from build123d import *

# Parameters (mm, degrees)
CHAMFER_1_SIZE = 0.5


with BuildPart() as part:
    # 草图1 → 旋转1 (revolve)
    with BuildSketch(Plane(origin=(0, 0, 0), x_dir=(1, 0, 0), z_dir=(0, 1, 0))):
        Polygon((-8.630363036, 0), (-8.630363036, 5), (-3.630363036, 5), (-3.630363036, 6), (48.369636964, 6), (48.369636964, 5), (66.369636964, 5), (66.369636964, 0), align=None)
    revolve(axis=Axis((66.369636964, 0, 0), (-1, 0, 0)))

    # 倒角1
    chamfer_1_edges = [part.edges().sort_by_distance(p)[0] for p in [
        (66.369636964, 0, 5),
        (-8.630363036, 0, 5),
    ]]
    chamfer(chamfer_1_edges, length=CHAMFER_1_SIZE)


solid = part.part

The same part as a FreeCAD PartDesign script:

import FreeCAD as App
import Part
import Sketcher
from FreeCAD import Vector
Q = App.Units.Quantity


def edges_at(feature, points):
    """Names of the edges that pass closest to the given points."""
    edges = feature.Shape.Edges
    near = lambda p: min(range(len(edges)), key=lambda i: edges[i].distToShape(Part.Vertex(*p))[0])
    return sorted({f"Edge{near(p) + 1}" for p in points})

doc = App.newDocument("Part")
body = doc.addObject("PartDesign::Body", "Body")

# Sketch on XZ plane
sketch1 = doc.addObject("Sketcher::SketchObject", "Sketch")
body.addObject(sketch1)
sketch1.AttachmentSupport = (doc.XZ_Plane, [""])
sketch1.MapMode = "FlatFace"
sketch1.addGeometry(Part.LineSegment(Vector(-8.6, -5, 0), Vector(-8.6, 0, 0)), False)
sketch1.addGeometry(Part.LineSegment(Vector(-8.6, 0, 0), Vector(66.4, 0, 0)), False)
sketch1.addGeometry(Part.LineSegment(Vector(66.4, 0, 0), Vector(66.4, -5, 0)), False)
sketch1.addGeometry(Part.LineSegment(Vector(66.4, -5, 0), Vector(48.4, -5, 0)), False)
sketch1.addGeometry(Part.LineSegment(Vector(48.4, -5, 0), Vector(48.4, -6, 0)), False)
sketch1.addGeometry(Part.LineSegment(Vector(48.4, -6, 0), Vector(-3.6, -6, 0)), False)
sketch1.addGeometry(Part.LineSegment(Vector(-3.6, -6, 0), Vector(-3.6, -5, 0)), False)
sketch1.addGeometry(Part.LineSegment(Vector(-3.6, -5, 0), Vector(-8.6, -5, 0)), False)
sketch1.addConstraint(Sketcher.Constraint("Coincident", 0, 2, 1, 1))
sketch1.addConstraint(Sketcher.Constraint("Coincident", 1, 2, 2, 1))
sketch1.addConstraint(Sketcher.Constraint("Coincident", 2, 2, 3, 1))
sketch1.addConstraint(Sketcher.Constraint("Coincident", 3, 2, 4, 1))
sketch1.addConstraint(Sketcher.Constraint("Coincident", 4, 2, 5, 1))
sketch1.addConstraint(Sketcher.Constraint("Coincident", 5, 2, 6, 1))
sketch1.addConstraint(Sketcher.Constraint("Coincident", 6, 2, 7, 1))
sketch1.addConstraint(Sketcher.Constraint("Coincident", 7, 2, 0, 1))
sketch1.addConstraint(Sketcher.Constraint("Vertical", 0))
sketch1.addConstraint(Sketcher.Constraint("Horizontal", 1))
sketch1.addConstraint(Sketcher.Constraint("Vertical", 2))
sketch1.addConstraint(Sketcher.Constraint("Horizontal", 3))
sketch1.addConstraint(Sketcher.Constraint("Vertical", 4))
sketch1.addConstraint(Sketcher.Constraint("Horizontal", 5))
sketch1.addConstraint(Sketcher.Constraint("Vertical", 6))
sketch1.addConstraint(Sketcher.Constraint("Horizontal", 7))
sketch1.addConstraint(Sketcher.Constraint("PointOnObject", 0, 2, -1))
sketch1.addConstraint(Sketcher.Constraint("Horizontal", 3, 2, 6, 2))
sketch1.addConstraint(Sketcher.Constraint("Equal", 7, 0))
sketch1.addConstraint(Sketcher.Constraint("DistanceX", 1, 1, 1, 2, Q("75 mm")))
sketch1.addConstraint(Sketcher.Constraint("DistanceX", 3, 2, 3, 1, Q("18 mm")))
sketch1.addConstraint(Sketcher.Constraint("DistanceX", 5, 2, 5, 1, Q("52 mm")))
sketch1.addConstraint(Sketcher.Constraint("DistanceY", 4, 2, 4, 1, Q("1 mm")))
sketch1.addConstraint(Sketcher.Constraint("DistanceX", 0, 2, -1, 1, Q("8.630363 mm")))
revolution = doc.addObject("PartDesign::Revolution", "Revolution")
body.addObject(revolution)
revolution.Profile = sketch1
revolution.ReferenceAxis = (sketch1, ["H_Axis"])
revolution.Angle = 360
doc.recompute()

chamfer = doc.addObject("PartDesign::Chamfer", "Chamfer")
body.addObject(chamfer)
chamfer.Base = (revolution, edges_at(revolution, [(66.37, 0, 5), (-8.63, 0, 5)]))
chamfer.Size = 0.5

doc.recompute()
